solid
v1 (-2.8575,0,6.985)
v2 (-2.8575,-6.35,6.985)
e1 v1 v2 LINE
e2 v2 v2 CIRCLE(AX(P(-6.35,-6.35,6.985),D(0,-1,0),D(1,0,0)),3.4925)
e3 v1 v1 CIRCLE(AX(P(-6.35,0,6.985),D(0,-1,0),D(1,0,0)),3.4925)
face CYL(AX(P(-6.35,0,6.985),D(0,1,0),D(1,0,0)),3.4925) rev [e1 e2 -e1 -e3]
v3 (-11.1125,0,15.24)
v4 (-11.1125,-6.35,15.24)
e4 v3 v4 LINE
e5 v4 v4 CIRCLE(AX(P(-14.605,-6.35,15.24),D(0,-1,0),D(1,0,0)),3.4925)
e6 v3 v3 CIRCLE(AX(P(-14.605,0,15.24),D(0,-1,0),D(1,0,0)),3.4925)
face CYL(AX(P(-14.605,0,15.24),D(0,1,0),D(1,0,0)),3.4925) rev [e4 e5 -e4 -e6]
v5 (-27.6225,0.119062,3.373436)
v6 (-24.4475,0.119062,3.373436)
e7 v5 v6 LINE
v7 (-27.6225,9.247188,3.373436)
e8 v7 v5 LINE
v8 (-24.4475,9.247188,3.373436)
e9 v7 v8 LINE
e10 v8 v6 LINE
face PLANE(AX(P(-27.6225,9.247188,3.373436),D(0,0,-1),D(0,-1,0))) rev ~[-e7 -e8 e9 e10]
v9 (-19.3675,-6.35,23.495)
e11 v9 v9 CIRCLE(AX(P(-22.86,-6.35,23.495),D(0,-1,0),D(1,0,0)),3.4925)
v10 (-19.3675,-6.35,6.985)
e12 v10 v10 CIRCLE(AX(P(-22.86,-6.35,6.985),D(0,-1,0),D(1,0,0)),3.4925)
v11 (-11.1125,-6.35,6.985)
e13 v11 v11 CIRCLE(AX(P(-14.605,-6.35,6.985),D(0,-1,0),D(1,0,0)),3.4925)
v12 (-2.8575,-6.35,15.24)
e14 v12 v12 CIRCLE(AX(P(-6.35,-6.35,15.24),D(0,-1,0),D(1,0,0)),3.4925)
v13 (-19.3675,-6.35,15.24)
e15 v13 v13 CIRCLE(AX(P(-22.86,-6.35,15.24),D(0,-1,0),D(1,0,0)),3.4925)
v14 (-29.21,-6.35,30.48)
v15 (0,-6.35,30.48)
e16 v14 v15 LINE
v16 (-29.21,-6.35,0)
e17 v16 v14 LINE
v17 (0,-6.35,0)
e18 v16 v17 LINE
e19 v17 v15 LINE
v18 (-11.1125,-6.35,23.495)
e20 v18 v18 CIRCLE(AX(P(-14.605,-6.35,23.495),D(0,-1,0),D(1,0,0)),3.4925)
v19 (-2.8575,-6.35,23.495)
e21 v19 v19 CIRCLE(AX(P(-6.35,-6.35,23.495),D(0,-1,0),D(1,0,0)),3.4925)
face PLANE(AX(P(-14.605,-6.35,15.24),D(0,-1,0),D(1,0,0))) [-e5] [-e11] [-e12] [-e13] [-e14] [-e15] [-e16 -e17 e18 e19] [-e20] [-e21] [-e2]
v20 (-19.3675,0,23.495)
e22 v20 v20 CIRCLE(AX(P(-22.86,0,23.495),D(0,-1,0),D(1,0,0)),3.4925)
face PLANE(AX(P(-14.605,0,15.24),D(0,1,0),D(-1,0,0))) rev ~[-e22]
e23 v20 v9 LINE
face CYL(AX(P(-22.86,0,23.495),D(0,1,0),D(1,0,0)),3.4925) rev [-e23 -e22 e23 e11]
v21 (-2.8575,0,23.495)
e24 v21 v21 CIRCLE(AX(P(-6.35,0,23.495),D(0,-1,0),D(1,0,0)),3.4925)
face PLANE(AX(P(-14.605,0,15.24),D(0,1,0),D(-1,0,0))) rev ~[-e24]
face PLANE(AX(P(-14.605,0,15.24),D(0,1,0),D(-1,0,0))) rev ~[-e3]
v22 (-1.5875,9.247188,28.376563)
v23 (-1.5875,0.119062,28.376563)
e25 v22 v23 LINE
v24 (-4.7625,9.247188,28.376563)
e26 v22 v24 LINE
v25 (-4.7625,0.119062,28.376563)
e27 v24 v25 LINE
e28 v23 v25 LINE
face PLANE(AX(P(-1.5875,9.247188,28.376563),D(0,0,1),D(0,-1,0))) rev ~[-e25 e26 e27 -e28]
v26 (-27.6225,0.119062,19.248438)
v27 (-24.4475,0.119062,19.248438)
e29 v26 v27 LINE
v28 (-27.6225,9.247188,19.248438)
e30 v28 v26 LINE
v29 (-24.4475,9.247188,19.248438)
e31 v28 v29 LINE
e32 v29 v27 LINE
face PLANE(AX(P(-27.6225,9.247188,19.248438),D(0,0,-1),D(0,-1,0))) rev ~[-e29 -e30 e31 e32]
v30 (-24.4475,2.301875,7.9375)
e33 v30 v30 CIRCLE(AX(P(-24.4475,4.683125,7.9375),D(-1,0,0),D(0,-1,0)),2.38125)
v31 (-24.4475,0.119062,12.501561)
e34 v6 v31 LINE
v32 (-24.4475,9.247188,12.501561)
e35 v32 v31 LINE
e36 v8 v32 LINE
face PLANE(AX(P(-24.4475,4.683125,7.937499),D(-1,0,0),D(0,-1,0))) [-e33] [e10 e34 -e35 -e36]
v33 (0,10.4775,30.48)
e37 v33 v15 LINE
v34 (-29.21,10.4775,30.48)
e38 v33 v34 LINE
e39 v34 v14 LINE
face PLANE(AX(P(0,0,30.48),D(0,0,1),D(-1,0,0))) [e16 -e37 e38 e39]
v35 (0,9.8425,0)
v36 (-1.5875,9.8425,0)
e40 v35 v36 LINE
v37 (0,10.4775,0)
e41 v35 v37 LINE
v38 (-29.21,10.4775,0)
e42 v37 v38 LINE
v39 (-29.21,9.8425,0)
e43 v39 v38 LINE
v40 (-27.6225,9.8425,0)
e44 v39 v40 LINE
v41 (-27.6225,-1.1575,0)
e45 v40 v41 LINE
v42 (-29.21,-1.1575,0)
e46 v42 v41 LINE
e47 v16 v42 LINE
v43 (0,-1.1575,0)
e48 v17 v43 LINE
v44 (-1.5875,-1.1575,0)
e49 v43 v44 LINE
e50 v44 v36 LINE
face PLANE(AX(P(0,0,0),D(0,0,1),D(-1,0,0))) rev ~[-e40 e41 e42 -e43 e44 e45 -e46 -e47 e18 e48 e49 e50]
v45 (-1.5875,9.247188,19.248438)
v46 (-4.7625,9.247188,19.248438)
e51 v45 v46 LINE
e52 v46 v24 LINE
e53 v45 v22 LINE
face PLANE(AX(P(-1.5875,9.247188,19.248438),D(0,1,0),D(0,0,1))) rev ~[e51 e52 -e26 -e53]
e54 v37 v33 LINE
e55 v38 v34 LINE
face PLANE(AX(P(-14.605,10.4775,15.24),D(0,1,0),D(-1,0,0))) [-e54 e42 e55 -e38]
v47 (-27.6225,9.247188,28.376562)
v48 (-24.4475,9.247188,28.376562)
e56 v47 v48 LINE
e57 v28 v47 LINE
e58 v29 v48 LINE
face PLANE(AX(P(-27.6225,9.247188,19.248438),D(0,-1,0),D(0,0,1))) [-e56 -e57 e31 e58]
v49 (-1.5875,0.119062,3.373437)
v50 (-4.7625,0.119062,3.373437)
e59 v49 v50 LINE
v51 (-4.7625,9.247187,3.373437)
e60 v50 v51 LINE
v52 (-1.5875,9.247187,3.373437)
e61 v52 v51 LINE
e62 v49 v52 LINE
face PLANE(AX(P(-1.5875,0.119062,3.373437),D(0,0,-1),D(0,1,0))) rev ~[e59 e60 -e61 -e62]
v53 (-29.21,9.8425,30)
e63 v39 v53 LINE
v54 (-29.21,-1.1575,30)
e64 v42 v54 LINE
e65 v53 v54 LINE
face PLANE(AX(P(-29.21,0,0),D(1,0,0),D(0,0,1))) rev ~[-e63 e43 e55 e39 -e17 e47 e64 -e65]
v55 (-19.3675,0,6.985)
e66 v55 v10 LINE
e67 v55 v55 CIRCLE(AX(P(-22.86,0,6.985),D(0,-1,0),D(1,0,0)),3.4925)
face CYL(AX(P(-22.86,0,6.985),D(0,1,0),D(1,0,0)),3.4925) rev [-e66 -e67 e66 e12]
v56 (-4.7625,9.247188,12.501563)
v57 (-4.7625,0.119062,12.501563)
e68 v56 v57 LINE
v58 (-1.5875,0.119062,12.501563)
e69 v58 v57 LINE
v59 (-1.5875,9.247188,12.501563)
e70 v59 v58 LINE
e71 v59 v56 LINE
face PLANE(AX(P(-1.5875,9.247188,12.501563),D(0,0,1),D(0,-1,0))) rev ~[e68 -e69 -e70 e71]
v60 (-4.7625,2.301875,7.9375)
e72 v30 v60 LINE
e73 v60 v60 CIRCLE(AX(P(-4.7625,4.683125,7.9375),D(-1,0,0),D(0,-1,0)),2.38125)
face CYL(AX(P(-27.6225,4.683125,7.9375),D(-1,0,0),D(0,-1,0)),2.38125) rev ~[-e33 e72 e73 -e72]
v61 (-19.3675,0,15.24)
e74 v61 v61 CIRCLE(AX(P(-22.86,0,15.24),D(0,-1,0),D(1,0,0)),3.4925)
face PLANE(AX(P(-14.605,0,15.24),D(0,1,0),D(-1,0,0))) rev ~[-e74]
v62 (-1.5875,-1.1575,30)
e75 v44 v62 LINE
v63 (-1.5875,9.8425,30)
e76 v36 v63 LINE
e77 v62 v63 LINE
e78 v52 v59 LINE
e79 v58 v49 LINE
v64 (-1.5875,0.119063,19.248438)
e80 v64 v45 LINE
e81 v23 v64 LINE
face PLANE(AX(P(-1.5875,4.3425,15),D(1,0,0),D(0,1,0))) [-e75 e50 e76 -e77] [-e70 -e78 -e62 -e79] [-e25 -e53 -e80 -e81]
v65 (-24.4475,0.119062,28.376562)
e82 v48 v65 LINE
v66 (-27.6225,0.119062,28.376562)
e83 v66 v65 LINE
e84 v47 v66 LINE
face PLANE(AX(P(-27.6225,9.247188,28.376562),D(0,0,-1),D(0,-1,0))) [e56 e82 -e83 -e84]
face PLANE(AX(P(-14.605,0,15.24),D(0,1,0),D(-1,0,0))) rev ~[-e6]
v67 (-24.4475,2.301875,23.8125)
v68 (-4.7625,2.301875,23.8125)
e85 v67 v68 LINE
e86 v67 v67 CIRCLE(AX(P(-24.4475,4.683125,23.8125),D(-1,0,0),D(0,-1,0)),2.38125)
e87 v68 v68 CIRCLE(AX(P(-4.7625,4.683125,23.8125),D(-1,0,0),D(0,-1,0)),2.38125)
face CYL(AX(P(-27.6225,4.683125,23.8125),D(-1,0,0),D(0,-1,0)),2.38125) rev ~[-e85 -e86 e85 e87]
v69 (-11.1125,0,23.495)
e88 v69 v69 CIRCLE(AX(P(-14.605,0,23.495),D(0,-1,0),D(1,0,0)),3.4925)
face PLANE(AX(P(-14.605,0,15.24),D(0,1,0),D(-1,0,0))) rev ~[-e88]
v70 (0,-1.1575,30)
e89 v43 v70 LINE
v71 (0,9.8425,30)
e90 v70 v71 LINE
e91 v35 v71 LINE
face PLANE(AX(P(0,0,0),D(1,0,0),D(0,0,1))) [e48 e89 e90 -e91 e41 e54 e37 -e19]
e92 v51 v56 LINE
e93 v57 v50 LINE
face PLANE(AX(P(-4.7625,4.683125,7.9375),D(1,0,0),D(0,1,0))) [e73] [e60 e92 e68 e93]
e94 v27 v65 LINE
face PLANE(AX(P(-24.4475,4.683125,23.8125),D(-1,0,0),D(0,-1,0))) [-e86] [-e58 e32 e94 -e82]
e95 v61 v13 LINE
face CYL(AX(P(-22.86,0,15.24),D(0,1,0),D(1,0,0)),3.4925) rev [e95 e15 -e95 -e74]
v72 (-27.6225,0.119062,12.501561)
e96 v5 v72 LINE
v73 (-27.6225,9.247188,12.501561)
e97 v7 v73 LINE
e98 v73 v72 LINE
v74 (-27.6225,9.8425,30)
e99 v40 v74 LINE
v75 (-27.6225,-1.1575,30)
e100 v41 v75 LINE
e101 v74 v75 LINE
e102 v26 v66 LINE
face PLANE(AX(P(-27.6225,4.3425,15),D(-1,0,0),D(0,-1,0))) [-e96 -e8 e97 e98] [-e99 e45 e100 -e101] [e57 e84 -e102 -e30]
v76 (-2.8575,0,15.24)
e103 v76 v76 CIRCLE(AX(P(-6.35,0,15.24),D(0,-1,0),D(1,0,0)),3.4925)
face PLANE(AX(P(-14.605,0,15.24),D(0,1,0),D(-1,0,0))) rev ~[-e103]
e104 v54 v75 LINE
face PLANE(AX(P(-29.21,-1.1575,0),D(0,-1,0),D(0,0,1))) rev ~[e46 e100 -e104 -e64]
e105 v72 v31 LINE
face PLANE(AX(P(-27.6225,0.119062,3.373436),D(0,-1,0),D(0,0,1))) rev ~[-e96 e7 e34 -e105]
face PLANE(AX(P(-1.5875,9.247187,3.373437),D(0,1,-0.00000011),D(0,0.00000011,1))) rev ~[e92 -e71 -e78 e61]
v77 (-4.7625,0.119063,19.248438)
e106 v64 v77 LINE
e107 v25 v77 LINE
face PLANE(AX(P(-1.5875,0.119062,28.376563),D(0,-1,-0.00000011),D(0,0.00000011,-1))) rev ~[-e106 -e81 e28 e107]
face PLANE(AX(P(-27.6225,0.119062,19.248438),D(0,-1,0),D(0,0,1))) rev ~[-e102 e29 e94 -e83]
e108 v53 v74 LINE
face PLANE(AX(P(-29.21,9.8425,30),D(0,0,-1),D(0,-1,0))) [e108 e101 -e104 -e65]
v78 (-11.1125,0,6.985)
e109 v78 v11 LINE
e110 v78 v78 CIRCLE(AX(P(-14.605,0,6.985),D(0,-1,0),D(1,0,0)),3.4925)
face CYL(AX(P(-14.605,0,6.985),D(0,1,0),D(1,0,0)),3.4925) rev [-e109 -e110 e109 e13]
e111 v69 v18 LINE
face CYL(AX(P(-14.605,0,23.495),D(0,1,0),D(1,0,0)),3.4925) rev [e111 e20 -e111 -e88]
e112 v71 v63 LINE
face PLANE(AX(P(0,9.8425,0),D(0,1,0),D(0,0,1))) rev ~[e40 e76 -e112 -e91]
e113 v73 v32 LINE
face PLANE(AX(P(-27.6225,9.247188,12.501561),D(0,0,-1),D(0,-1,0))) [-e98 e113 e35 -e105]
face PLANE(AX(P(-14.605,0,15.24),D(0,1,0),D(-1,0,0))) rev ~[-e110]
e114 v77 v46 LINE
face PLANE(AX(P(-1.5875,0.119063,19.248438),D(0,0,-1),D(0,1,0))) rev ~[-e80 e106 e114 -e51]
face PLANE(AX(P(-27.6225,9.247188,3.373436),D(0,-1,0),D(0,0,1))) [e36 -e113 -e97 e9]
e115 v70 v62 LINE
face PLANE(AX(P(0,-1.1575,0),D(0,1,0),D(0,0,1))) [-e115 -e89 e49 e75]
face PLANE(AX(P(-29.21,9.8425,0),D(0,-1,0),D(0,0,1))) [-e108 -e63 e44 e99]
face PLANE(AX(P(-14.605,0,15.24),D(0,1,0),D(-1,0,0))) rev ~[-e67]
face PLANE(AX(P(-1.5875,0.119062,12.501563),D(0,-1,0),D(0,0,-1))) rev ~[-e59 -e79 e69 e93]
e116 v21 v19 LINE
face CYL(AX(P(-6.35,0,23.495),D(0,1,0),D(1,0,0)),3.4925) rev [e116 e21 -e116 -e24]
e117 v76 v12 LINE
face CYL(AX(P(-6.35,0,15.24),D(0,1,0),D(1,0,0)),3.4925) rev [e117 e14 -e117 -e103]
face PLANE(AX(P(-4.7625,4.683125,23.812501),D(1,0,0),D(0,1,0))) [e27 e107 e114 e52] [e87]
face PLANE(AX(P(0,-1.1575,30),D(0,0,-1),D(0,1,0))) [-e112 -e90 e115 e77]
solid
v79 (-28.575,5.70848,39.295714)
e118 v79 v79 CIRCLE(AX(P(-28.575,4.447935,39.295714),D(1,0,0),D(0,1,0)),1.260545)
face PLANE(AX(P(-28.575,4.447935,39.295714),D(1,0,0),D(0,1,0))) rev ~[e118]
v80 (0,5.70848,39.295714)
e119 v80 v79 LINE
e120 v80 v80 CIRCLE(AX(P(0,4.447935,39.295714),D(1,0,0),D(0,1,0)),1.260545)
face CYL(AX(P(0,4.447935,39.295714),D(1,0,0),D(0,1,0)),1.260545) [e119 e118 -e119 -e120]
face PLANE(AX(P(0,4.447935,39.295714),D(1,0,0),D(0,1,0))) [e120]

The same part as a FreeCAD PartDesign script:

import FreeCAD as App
import Part
import Sketcher

V = App.Vector
Q = App.Units.Quantity


def add_polygon(sketch, points):
    """Adds a closed chain of lines whose ends are joined by coincident constraints."""
    first, n = sketch.GeometryCount, len(points)
    for a, b in zip(points, points[1:] + points[:1]):
        sketch.addGeometry(Part.LineSegment(App.Vector(*a, 0), App.Vector(*b, 0)), False)
    for i in range(n):
        sketch.addConstraint(Sketcher.Constraint("Coincident", first + i, 2, first + (i + 1) % n, 1))

doc = App.newDocument("Part")
body = doc.addObject("PartDesign::Body", "Body")

sketch1 = body.newObject("Sketcher::SketchObject", "Sketch")
sketch1.AttachmentSupport = (doc.getObject("XZ_Plane"), [""])
sketch1.MapMode = "FlatFace"
add_polygon(sketch1, [(-29.21, 30.48), (-29.21, 0), (0, 0), (0, 30.48)])
sketch1.addGeometry(Part.Circle(V(-22.86, 6.985, 0), V(0, 0, 1), 3.4925), False)
sketch1.addGeometry(Part.Circle(V(-14.605, 6.985, 0), V(0, 0, 1), 3.4925), False)
sketch1.addGeometry(Part.Circle(V(-22.86, 15.24, 0), V(0, 0, 1), 3.4925), False)
sketch1.addGeometry(Part.Circle(V(-14.605, 15.24, 0), V(0, 0, 1), 3.4925), False)
sketch1.addGeometry(Part.Circle(V(-6.35, 6.985, 0), V(0, 0, 1), 3.4925), False)
sketch1.addGeometry(Part.Circle(V(-6.35, 15.24, 0), V(0, 0, 1), 3.4925), False)
sketch1.addGeometry(Part.Circle(V(-22.86, 23.495, 0), V(0, 0, 1), 3.4925), False)
sketch1.addGeometry(Part.Circle(V(-14.605, 23.495, 0), V(0, 0, 1), 3.4925), False)
sketch1.addGeometry(Part.Circle(V(-6.35, 23.495, 0), V(0, 0, 1), 3.4925), False)
sketch1.addConstraint([
    Sketcher.Constraint("Vertical", 0),
    Sketcher.Constraint("Horizontal", 1),
    Sketcher.Constraint("Vertical", 2),
    Sketcher.Constraint("Horizontal", 3),
    Sketcher.Constraint("Coincident", 1, 2, -1, 1),
    Sketcher.Constraint("Equal", 4, 5),
    Sketcher.Constraint("Equal", 5, 6),
    Sketcher.Constraint("Equal", 6, 7),
    Sketcher.Constraint("Equal", 7, 8),
    Sketcher.Constraint("Equal", 8, 9),
    Sketcher.Constraint("Equal", 9, 10),
    Sketcher.Constraint("Equal", 10, 11),
    Sketcher.Constraint("Equal", 11, 12),
    Sketcher.Constraint("Horizontal", 4, 3, 5, 3),
    Sketcher.Constraint("Horizontal", 6, 3, 7, 3),
    Sketcher.Constraint("Horizontal", 5, 3, 8, 3),
    Sketcher.Constraint("Horizontal", 7, 3, 9, 3),
    Sketcher.Constraint("Horizontal", 10, 3, 11, 3),
    Sketcher.Constraint("Horizontal", 11, 3, 12, 3),
    Sketcher.Constraint("Vertical", 4, 3, 6, 3),
    Sketcher.Constraint("Vertical", 5, 3, 7, 3),
    Sketcher.Constraint("Vertical", 8, 3, 9, 3),
    Sketcher.Constraint("Vertical", 6, 3, 10, 3),
    Sketcher.Constraint("Vertical", 7, 3, 11, 3),
    Sketcher.Constraint("Vertical", 9, 3, 12, 3),
    Sketcher.Constraint("Diameter", 4, Q("0.275 in")),
    Sketcher.Constraint("DistanceY", 0, 2, 0, 1, Q("1.2 in")),
    Sketcher.Constraint("DistanceX", 1, 1, 1, 2, Q("1.15 in")),
    Sketcher.Constraint("DistanceX", 4, 3, -1, 1, Q("0.9 in")),
    Sketcher.Constraint("DistanceY", -1, 1, 6, 3, Q("0.6 in")),
    Sketcher.Constraint("DistanceX", 0, 2, 8, 3, Q("0.9 in")),
    Sketcher.Constraint("DistanceY", 4, 3, 10, 3, Q("0.65 in")),
    Sketcher.Constraint("DistanceY", -1, 1, 4, 3, Q("0.275 in")),
    Sketcher.Constraint("DistanceX", 5, 3, -1, 1, Q("0.575 in")),
])
pad1 = body.newObject("PartDesign::Pad", "Pad")
pad1.Profile = sketch1
pad1.Length = Q("0.25 in")

sketch2 = body.newObject("Sketcher::SketchObject", "Sketch001")
sketch2.AttachmentSupport = (doc.getObject("XZ_Plane"), [""])
sketch2.MapMode = "FlatFace"
add_polygon(sketch2, [(0, 30.48), (0, 0), (-29.21, 0), (-29.21, 30.48)])
sketch2.addConstraint([
    Sketcher.Constraint("Vertical", 0),
    Sketcher.Constraint("Horizontal", 1),
    Sketcher.Constraint("Vertical", 2),
    Sketcher.Constraint("Horizontal", 3),
    Sketcher.Constraint("Coincident", 0, 2, -1, 1),
    Sketcher.Constraint("DistanceY", 0, 2, 0, 1, Q("1.2 in")),
    Sketcher.Constraint("DistanceX", 1, 2, 1, 1, Q("1.15 in")),
])
pad2 = body.newObject("PartDesign::Pad", "Pad001")
pad2.Profile = sketch2
pad2.Length = Q("0.4125 in")
pad2.Reversed = True

sketch3 = body.newObject("Sketcher::SketchObject", "Sketch002")
sketch3.AttachmentSupport = (doc.getObject("YZ_Plane"), [""])
sketch3.MapMode = "FlatFace"
add_polygon(sketch3, [(-1.1575, 30), (-1.1575, 0), (9.8425, 0), (9.8425, 30)])
sketch3.addConstraint([
    Sketcher.Constraint("Vertical", 0),
    Sketcher.Constraint("Horizontal", 1),
    Sketcher.Constraint("Vertical", 2),
    Sketcher.Constraint("Horizontal", 3),
    Sketcher.Constraint("PointOnObject", 0, 2, -1),
    Sketcher.Constraint("DistanceX", 1, 1, 1, 2, Q("11 mm")),
    Sketcher.Constraint("DistanceY", 0, 2, 0, 1, Q("30 mm")),
    Sketcher.Constraint("DistanceX", -1, 1, 1, 2, Q("0.3875 in")),
])
pocket1 = body.newObject("PartDesign::Pocket", "Pocket")
pocket1.Profile = sketch3
pocket1.Length = Q("0.0625 in")

sketch4 = body.newObject("Sketcher::SketchObject", "Sketch003")
sketch4.AttachmentSupport = (doc.getObject("YZ_Plane"), [""])
sketch4.MapMode = "FlatFace"
sketch4.AttachmentOffset = App.Placement(V(0, 0, -1.15 * 25.4), App.Rotation())
add_polygon(sketch4, [(9.8425, 30), (9.8425, 0), (-1.1575, 0), (-1.1575, 30)])
sketch4.addConstraint([
    Sketcher.Constraint("Vertical", 0),
    Sketcher.Constraint("Horizontal", 1),
    Sketcher.Constraint("Vertical", 2),
    Sketcher.Constraint("Horizontal", 3),
    Sketcher.Constraint("PointOnObject", 0, 2, -1),
    Sketcher.Constraint("DistanceX", 1, 2, 1, 1, Q("11 mm")),
    Sketcher.Constraint("DistanceY", 0, 2, 0, 1, Q("30 mm")),
    Sketcher.Constraint("DistanceX", -1, 1, 0, 2, Q("0.3875 in")),
])
pocket2 = body.newObject("PartDesign::Pocket", "Pocket001")
pocket2.Profile = sketch4
pocket2.Length = Q("0.0625 in")
pocket2.Reversed = True

sketch5 = body.newObject("Sketcher::SketchObject", "Sketch004")
sketch5.AttachmentSupport = (doc.getObject("YZ_Plane"), [""])
sketch5.MapMode = "FlatFace"
sketch5.AttachmentOffset = App.Placement(V(0, 0, -1.0875 * 25.4), App.Rotation())
sketch5.addGeometry([
    Part.Circle(V(4.683125, 23.8125, 0), V(0, 0, 1), 2.38125),
    Part.Circle(V(4.683125, 7.9375, 0), V(0, 0, 1), 2.38125),
], False)
sketch5.addConstraint([
    Sketcher.Constraint("Equal", 0, 1),
    Sketcher.Constraint("Vertical", 0, 3, 1, 3),
    Sketcher.Constraint("Diameter", 0, Q("0.1875 in")),
    Sketcher.Constraint("DistanceY", -1, 1, 0, 3, Q("0.9375 in")),
    Sketcher.Constraint("DistanceY", -1, 1, 1, 3, Q("0.3125 in")),
    Sketcher.Constraint("DistanceX", -1, 1, 0, 3, Q("4.683125 mm")),
])
pocket3 = body.newObject("PartDesign::Pocket", "Pocket002")
pocket3.Profile = sketch5
pocket3.Type = "ThroughAll"
pocket3.Reversed = True

sketch6 = body.newObject("Sketcher::SketchObject", "Sketch005")
sketch6.AttachmentSupport = (doc.getObject("YZ_Plane"), [""])
sketch6.MapMode = "FlatFace"
sketch6.AttachmentOffset = App.Placement(V(0, 0, -1.0875 * 25.4), App.Rotation())
add_polygon(sketch6, [(9.247188, 28.376562), (9.247188, 19.248438), (0.119062, 19.248438), (0.119062, 28.376562)])
add_polygon(sketch6, [(9.247188, 12.501561), (9.247188, 3.373436), (0.119062, 3.373436), (0.119062, 12.501561)])
sketch6.addConstraint([
    Sketcher.Constraint("Vertical", 0),
    Sketcher.Constraint("Horizontal", 1),
    Sketcher.Constraint("Vertical", 2),
    Sketcher.Constraint("Horizontal", 3),
    Sketcher.Constraint("Vertical", 4),
    Sketcher.Constraint("Horizontal", 5),
    Sketcher.Constraint("Vertical", 6),
    Sketcher.Constraint("Horizontal", 7),
    Sketcher.Constraint("Vertical", 3, 2, 4, 2),
    Sketcher.Constraint("Vertical", 2, 2, 5, 2),
    Sketcher.Constraint("Equal", 7, 0),
    Sketcher.Constraint("Equal", 2, 4),
    Sketcher.Constraint("DistanceX", 1, 2, 1, 1, Q("0.359375 in")),
    Sketcher.Constraint("DistanceY", 4, 2, 0, 2, Q("0.625 in")),
    Sketcher.Constraint("DistanceY", -1, 1, 6, 2, Q("12.501561 mm")),
    Sketcher.Constraint("DistanceX", -1, 1, 0, 2, Q("9.247188 mm")),
])
pocket4 = body.newObject("PartDesign::Pocket", "Pocket003")
pocket4.Profile = sketch6
pocket4.Length = Q("0.125 in")
pocket4.Reversed = True

sketch7 = body.newObject("Sketcher::SketchObject", "Sketch006")
sketch7.AttachmentSupport = (doc.getObject("YZ_Plane"), [""])
sketch7.MapMode = "FlatFace"
sketch7.AttachmentOffset = App.Placement(V(0, 0, -0.0625 * 25.4), App.Rotation())
add_polygon(sketch7, [(9.247188, 28.376563), (0.119062, 28.376563), (0.119063, 19.248438), (9.247188, 19.248438)])
add_polygon(sketch7, [(9.247188, 12.501563), (0.119062, 12.501563), (0.119062, 3.373437), (9.247187, 3.373437)])
sketch7.addConstraint([
    Sketcher.Constraint("Horizontal", 0),
    Sketcher.Constraint("Vertical", 1),
    Sketcher.Constraint("Horizontal", 2),
    Sketcher.Constraint("Vertical", 3),
    Sketcher.Constraint("Horizontal", 4),
    Sketcher.Constraint("Vertical", 5),
    Sketcher.Constraint("Horizontal", 6),
    Sketcher.Constraint("Vertical", 7),
    Sketcher.Constraint("Vertical", 1, 2, 4, 2),
    Sketcher.Constraint("Vertical", 3, 2, 6, 2),
    Sketcher.Constraint("Equal", 6, 1),
    Sketcher.Constraint("Equal", 3, 5),
    Sketcher.Constraint("DistanceX", 0, 2, 0, 1, Q("0.359375 in")),
    Sketcher.Constraint("DistanceY", 4, 2, 1, 2, Q("0.265625 in")),
    Sketcher.Constraint("DistanceY", -1, 1, 1, 2, Q("19.248438 mm")),
    Sketcher.Constraint("DistanceX", -1, 1, 0, 2, Q("0.119062 mm")),
])
pocket5 = body.newObject("PartDesign::Pocket", "Pocket004")
pocket5.Profile = sketch7
pocket5.Length = Q("0.125 in")
body2 = doc.addObject("PartDesign::Body", "Body001")

sketch8 = body2.newObject("Sketcher::SketchObject", "Sketch007")
sketch8.AttachmentSupport = (doc.getObject("YZ_Plane001"), [""])
sketch8.MapMode = "FlatFace"
sketch8.addGeometry(Part.Circle(V(4.447935, 39.295714, 0), V(0, 0, 1), 1.260545), False)
sketch8.addConstraint([
    Sketcher.Constraint("Diameter", 0, Q("2.52109 mm")),
    Sketcher.Constraint("DistanceX", -1, 1, 0, 3, Q("4.447935 mm")),
    Sketcher.Constraint("DistanceY", -1, 1, 0, 3, Q("39.295714 mm")),
])
pad3 = body2.newObject("PartDesign::Pad", "Pad002")
pad3.Profile = sketch8
pad3.Length = Q("1.125 in")
pad3.Reversed = True

doc.recompute()
